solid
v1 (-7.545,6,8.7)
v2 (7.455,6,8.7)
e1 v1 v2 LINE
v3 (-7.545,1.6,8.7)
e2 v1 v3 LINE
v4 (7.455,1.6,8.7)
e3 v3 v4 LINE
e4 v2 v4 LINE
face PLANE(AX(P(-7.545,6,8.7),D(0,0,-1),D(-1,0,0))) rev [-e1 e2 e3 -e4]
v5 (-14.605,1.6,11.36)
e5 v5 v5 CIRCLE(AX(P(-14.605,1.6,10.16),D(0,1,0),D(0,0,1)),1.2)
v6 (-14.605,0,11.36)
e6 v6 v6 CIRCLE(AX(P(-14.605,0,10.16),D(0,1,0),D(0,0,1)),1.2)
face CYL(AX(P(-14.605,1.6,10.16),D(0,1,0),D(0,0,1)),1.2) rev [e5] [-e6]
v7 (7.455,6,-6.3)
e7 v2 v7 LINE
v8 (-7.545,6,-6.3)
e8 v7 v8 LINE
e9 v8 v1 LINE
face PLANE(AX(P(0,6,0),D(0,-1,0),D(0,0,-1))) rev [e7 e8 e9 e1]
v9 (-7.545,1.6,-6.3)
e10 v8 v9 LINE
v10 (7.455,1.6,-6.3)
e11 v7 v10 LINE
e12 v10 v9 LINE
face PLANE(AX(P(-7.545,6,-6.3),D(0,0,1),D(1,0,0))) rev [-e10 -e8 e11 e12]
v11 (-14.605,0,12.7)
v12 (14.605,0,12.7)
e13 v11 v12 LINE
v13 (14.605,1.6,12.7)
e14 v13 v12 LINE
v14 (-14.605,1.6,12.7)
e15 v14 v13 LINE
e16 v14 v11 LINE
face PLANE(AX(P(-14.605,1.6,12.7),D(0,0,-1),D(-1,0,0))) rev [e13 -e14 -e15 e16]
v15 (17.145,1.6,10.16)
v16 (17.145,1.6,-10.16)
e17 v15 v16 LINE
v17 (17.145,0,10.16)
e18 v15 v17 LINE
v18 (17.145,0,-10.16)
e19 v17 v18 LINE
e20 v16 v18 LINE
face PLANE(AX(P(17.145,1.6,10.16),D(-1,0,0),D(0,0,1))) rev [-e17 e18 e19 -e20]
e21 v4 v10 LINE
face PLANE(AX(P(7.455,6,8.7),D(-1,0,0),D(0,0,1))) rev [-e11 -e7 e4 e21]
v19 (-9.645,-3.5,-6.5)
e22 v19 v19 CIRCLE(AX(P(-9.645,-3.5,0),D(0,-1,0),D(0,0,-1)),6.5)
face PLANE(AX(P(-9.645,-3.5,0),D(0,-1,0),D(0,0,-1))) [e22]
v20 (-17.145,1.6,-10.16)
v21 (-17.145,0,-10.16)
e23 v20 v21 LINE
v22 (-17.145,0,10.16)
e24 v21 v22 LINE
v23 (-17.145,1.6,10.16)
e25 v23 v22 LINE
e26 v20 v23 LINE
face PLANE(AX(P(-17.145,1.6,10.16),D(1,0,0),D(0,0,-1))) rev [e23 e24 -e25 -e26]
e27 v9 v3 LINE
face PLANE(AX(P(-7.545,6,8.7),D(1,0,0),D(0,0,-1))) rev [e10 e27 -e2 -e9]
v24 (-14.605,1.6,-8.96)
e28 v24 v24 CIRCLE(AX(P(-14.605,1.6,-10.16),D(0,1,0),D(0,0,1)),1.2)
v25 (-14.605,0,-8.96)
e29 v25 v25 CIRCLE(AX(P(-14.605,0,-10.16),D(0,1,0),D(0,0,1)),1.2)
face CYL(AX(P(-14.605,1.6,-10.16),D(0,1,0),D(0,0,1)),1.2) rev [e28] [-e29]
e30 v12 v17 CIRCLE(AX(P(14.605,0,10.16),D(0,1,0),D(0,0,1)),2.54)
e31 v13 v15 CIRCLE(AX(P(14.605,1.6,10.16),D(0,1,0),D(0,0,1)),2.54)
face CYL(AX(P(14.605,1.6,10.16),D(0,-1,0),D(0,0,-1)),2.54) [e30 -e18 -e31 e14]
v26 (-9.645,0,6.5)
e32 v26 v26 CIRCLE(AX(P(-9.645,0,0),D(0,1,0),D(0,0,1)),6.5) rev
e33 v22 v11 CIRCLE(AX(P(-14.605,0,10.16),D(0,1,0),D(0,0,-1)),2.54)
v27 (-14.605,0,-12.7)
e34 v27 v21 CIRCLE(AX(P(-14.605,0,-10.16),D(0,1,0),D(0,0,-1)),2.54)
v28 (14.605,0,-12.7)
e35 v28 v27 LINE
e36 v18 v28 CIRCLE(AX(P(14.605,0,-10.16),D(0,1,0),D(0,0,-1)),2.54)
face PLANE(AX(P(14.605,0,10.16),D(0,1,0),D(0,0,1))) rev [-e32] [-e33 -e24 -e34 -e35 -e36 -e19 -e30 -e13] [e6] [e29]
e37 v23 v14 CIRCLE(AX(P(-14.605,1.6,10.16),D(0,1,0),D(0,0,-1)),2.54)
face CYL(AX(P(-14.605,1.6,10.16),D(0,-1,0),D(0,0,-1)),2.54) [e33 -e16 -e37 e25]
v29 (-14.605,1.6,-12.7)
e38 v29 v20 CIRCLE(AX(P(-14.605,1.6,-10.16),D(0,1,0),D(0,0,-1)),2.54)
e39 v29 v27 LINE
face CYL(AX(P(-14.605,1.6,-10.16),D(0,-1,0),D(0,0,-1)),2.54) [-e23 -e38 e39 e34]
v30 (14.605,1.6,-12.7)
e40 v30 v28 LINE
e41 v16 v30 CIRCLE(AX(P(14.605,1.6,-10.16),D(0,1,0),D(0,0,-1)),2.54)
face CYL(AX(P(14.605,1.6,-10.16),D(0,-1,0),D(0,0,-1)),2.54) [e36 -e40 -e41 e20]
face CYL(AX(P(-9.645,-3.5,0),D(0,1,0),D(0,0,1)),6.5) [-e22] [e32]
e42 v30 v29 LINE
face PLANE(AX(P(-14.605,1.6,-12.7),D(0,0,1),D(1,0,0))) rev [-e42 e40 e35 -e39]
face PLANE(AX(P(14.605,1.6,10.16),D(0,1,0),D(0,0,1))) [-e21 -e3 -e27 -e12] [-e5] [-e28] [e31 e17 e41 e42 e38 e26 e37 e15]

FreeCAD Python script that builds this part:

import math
import FreeCAD as App
import Part
import Sketcher

V = App.Vector
Q = App.Units.Quantity


def add_polygon(sketch, points):
    """Adds a closed chain of lines whose ends are joined by coincident constraints."""
    first, n = sketch.GeometryCount, len(points)
    for a, b in zip(points, points[1:] + points[:1]):
        sketch.addGeometry(Part.LineSegment(App.Vector(*a, 0), App.Vector(*b, 0)), False)
    for i in range(n):
        sketch.addConstraint(Sketcher.Constraint("Coincident", first + i, 2, first + (i + 1) % n, 1))

doc = App.newDocument("Part")
body = doc.addObject("PartDesign::Body", "Body")

sketch1 = body.newObject("Sketcher::SketchObject", "Sketch")
sketch1.AttachmentSupport = (doc.getObject("XZ_Plane"), [""])
sketch1.MapMode = "FlatFace"
sketch1.addGeometry(Part.LineSegment(V(-14.6, 12.7, 0), V(14.6, 12.7, 0)), False)
sketch1.addGeometry(Part.ArcOfCircle(Part.Circle(V(14.6, 10.2, 0), V(0, 0, 1), 2.5), math.radians(0), math.radians(90)), False)
sketch1.addGeometry(Part.LineSegment(V(17.1, 10.2, 0), V(17.1, -10.2, 0)), False)
sketch1.addGeometry(Part.ArcOfCircle(Part.Circle(V(14.6, -10.2, 0), V(0, 0, 1), 2.5), math.radians(-90), math.radians(0)), False)
sketch1.addGeometry(Part.LineSegment(V(14.6, -12.7, 0), V(-14.6, -12.7, 0)), False)
sketch1.addGeometry(Part.ArcOfCircle(Part.Circle(V(-14.6, -10.2, 0), V(0, 0, 1), 2.5), math.radians(-180), math.radians(-90)), False)
sketch1.addGeometry(Part.LineSegment(V(-17.1, -10.2, 0), V(-17.1, 10.2, 0)), False)
sketch1.addGeometry(Part.ArcOfCircle(Part.Circle(V(-14.6, 10.2, 0), V(0, 0, 1), 2.5), math.radians(90), math.radians(180)), False)
sketch1.addConstraint(Sketcher.Constraint("Tangent", 0, 2, 1, 2))
sketch1.addConstraint(Sketcher.Constraint("Tangent", 1, 1, 2, 1))
sketch1.addConstraint(Sketcher.Constraint("Tangent", 2, 2, 3, 2))
sketch1.addConstraint(Sketcher.Constraint("Tangent", 3, 1, 4, 1))
sketch1.addConstraint(Sketcher.Constraint("Tangent", 4, 2, 5, 2))
sketch1.addConstraint(Sketcher.Constraint("Tangent", 5, 1, 6, 1))
sketch1.addConstraint(Sketcher.Constraint("Tangent", 6, 2, 7, 2))
sketch1.addConstraint(Sketcher.Constraint("Tangent", 7, 1, 0, 1))
sketch1.addConstraint(Sketcher.Constraint("Horizontal", 0))
sketch1.addConstraint(Sketcher.Constraint("Vertical", 2))
sketch1.addConstraint(Sketcher.Constraint("Horizontal", 4))
sketch1.addConstraint(Sketcher.Constraint("Vertical", 6))
sketch1.addConstraint(Sketcher.Constraint("Equal", 1, 3))
sketch1.addConstraint(Sketcher.Constraint("Equal", 3, 5))
sketch1.addConstraint(Sketcher.Constraint("Equal", 5, 7))
sketch1.addConstraint(Sketcher.Constraint("Symmetric", 1, 3, 5, 3, -1, 1))
sketch1.addConstraint(Sketcher.Constraint("Radius", 1, Q("2.54 mm")))
sketch1.addConstraint(Sketcher.Constraint("DistanceX", 0, 1, 0, 2, Q("29.21 mm")))
sketch1.addConstraint(Sketcher.Constraint("DistanceY", 2, 2, 2, 1, Q("20.32 mm")))
pad1 = body.newObject("PartDesign::Pad", "Pad")
pad1.Profile = sketch1
pad1.Length = 1.6
pad1.Reversed = True

sketch2 = body.newObject("Sketcher::SketchObject", "Sketch001")
sketch2.AttachmentSupport = (doc.getObject("XZ_Plane"), [""])
sketch2.MapMode = "FlatFace"
sketch2.AttachmentOffset = App.Placement(V(0, 0, -1.6), App.Rotation())
sketch2.addGeometry(Part.Circle(V(-14.6, 10.2, 0), V(0, 0, 1), 1.2), False)
sketch2.addGeometry(Part.Circle(V(-14.6, -10.2, 0), V(0, 0, 1), 1.2), False)
sketch2.addConstraint(Sketcher.Constraint("Equal", 0, 1))
sketch2.addConstraint(Sketcher.Constraint("Symmetric", 0, 3, 1, 3, -1))
sketch2.addConstraint(Sketcher.Constraint("Diameter", 0, Q("2.4 mm")))
sketch2.addConstraint(Sketcher.Constraint("DistanceY", -1, 1, 0, 3, Q("10.16 mm")))
sketch2.addConstraint(Sketcher.Constraint("DistanceX", 0, 3, -1, 1, Q("14.605 mm")))
doc.recompute()
hole = body.newObject("PartDesign::Hole", "Hole")
hole.Profile = sketch2
hole.ThreadType = "None"
hole.Diameter = 2.4
hole.DepthType = "ThroughAll"
hole.Reversed = True

sketch3 = body.newObject("Sketcher::SketchObject", "Sketch002")
sketch3.AttachmentSupport = (doc.getObject("XZ_Plane"), [""])
sketch3.MapMode = "FlatFace"
sketch3.AttachmentOffset = App.Placement(V(0, 0, -1.6), App.Rotation())
add_polygon(sketch3, [(-8, -6), (-8, 9), (7, 9), (7, -6)])
sketch3.addConstraint(Sketcher.Constraint("Vertical", 0))
sketch3.addConstraint(Sketcher.Constraint("Horizontal", 1))
sketch3.addConstraint(Sketcher.Constraint("Vertical", 2))
sketch3.addConstraint(Sketcher.Constraint("Horizontal", 3))
sketch3.addConstraint(Sketcher.Constraint("Equal", 3, 0))
sketch3.addConstraint(Sketcher.Constraint("DistanceX", 1, 1, 1, 2, Q("15 mm")))
sketch3.addConstraint(Sketcher.Constraint("DistanceY", -1, 1, 0, 2, Q("8.7 mm")))
sketch3.addConstraint(Sketcher.Constraint("DistanceX", 0, 2, -1, 1, Q("7.545 mm")))
pad2 = body.newObject("PartDesign::Pad", "Pad001")
pad2.Profile = sketch3
pad2.Length = 4.4
pad2.Reversed = True

sketch4 = body.newObject("Sketcher::SketchObject", "Sketch003")
sketch4.AttachmentSupport = (doc.getObject("XZ_Plane"), [""])
sketch4.MapMode = "FlatFace"
sketch4.addGeometry(Part.Circle(V(-10, 0, 0), V(0, 0, 1), 6), False)
sketch4.addConstraint(Sketcher.Constraint("PointOnObject", 0, 3, -1))
sketch4.addConstraint(Sketcher.Constraint("Diameter", 0, Q("13 mm")))
sketch4.addConstraint(Sketcher.Constraint("DistanceX", 0, 3, -1, 1, Q("9.645 mm")))
pad3 = body.newObject("PartDesign::Pad", "Pad002")
pad3.Profile = sketch4
pad3.Length = 3.5

doc.recompute()
